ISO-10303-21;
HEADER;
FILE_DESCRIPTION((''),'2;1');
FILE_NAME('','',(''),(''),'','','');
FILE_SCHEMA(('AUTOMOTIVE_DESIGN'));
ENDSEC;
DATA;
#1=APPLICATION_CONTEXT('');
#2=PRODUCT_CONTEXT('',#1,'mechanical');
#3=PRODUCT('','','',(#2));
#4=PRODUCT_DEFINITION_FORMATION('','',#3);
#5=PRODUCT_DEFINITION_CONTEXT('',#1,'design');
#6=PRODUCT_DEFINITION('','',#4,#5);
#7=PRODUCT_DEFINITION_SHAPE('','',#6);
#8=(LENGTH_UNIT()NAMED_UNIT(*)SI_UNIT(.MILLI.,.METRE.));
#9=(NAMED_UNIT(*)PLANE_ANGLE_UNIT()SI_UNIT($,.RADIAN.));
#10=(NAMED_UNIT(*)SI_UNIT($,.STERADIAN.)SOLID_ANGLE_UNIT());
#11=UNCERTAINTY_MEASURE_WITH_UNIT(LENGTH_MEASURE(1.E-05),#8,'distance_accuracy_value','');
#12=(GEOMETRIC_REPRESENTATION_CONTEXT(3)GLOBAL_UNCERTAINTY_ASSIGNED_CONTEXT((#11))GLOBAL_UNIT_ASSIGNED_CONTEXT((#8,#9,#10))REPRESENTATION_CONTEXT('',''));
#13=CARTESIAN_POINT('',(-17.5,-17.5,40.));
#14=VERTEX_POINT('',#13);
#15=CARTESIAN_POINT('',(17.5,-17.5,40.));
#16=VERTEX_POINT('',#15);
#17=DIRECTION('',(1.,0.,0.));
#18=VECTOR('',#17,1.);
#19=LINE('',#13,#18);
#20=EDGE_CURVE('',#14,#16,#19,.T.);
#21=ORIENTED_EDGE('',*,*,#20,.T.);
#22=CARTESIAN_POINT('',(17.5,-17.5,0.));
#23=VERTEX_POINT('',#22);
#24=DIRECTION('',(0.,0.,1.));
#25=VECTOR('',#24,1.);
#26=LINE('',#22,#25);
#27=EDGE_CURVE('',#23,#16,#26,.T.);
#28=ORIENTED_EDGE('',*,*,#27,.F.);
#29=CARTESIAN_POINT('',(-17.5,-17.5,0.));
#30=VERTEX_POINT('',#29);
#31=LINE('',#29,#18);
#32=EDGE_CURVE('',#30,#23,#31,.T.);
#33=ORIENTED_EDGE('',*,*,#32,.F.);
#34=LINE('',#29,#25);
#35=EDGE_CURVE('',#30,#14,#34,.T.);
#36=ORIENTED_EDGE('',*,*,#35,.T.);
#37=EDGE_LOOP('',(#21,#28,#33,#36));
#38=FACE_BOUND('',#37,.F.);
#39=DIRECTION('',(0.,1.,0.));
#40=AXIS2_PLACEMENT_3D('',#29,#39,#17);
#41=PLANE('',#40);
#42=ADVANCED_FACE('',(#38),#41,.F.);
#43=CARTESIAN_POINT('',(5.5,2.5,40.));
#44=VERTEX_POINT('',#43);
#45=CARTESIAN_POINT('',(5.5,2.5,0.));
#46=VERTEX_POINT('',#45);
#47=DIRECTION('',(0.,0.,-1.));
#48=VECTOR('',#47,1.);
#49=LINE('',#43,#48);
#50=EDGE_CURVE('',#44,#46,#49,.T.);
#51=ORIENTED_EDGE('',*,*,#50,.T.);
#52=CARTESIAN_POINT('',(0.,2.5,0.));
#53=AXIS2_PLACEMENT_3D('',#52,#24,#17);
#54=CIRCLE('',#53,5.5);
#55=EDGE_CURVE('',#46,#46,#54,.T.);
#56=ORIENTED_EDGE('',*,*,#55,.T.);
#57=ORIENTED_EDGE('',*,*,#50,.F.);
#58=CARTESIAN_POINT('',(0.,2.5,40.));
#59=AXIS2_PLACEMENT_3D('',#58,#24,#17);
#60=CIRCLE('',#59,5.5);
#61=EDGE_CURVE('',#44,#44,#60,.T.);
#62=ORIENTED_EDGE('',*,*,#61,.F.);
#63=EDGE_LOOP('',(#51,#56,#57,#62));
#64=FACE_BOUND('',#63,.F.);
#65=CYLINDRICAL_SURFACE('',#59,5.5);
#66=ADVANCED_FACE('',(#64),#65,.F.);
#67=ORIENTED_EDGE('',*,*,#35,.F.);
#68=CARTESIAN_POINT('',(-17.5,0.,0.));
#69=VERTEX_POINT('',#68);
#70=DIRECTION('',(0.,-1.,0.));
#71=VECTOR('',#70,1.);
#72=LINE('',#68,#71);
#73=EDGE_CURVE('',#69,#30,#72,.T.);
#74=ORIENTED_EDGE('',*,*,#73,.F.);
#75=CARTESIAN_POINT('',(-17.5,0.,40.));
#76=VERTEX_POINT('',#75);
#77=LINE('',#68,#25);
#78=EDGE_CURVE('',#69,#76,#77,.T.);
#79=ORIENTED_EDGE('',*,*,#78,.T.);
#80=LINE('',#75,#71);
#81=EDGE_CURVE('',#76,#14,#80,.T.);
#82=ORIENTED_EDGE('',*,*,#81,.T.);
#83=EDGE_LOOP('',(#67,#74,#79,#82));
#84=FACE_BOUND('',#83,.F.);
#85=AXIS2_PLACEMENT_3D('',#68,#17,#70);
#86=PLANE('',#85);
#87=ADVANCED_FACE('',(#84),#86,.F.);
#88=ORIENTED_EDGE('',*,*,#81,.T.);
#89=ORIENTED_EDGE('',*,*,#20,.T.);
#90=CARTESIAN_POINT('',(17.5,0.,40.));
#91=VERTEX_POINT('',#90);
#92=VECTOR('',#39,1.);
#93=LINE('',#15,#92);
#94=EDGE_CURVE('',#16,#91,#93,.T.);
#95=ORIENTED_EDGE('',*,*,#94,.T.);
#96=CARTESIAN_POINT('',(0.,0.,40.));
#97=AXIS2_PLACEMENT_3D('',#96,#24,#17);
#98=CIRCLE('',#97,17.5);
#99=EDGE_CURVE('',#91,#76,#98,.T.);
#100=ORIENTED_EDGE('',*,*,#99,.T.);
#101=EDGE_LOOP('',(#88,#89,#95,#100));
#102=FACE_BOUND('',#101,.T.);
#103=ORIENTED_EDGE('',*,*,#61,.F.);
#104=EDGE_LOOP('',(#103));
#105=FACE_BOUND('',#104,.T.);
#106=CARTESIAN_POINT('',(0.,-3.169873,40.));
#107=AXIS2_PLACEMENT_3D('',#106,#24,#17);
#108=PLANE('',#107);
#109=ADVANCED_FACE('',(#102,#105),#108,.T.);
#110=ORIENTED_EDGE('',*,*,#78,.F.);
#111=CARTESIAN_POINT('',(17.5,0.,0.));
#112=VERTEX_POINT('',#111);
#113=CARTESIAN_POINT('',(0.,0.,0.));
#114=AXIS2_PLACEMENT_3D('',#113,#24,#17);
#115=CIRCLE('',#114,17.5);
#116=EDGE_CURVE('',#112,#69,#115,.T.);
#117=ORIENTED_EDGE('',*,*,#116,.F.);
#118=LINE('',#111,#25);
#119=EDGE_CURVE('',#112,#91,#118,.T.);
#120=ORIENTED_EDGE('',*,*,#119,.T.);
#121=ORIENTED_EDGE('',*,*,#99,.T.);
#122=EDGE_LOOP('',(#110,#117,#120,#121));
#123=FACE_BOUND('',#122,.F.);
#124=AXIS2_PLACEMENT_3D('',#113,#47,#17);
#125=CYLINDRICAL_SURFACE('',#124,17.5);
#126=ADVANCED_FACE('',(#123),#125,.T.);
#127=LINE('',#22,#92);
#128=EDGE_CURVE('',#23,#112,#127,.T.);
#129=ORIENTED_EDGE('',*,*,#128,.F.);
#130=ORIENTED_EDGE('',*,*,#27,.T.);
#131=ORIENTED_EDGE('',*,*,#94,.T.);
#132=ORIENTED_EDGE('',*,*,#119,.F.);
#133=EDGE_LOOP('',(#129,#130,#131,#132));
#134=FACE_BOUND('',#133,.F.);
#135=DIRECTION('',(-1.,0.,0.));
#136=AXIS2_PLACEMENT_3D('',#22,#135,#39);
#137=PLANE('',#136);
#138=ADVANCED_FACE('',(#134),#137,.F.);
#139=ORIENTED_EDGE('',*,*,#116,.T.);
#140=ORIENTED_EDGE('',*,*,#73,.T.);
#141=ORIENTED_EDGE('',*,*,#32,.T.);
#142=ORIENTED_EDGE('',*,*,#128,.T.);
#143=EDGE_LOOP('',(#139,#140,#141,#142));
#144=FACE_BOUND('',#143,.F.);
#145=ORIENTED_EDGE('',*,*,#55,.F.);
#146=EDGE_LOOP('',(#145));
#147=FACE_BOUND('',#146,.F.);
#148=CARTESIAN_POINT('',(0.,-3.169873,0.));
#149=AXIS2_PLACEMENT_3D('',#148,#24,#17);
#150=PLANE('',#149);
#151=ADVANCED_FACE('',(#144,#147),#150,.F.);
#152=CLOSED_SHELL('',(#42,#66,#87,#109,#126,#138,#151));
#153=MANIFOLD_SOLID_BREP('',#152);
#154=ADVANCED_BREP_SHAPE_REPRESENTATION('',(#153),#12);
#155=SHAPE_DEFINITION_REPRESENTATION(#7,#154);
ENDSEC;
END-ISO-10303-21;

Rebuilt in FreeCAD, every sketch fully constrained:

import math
import FreeCAD as App
import Part
import Sketcher

doc = App.newDocument("Part")
body = doc.addObject("PartDesign::Body", "Body")

# Sketch on XY plane
sketch1 = body.newObject("Sketcher::SketchObject", "Sketch")
sketch1.AttachmentSupport = (doc.getObject("XY_Plane"), [""])
sketch1.MapMode = "FlatFace"
sketch1.addGeometry([
    Part.LineSegment(App.Vector(-17.5, 0, 0), App.Vector(-17.5, -17.5, 0)),
    Part.LineSegment(App.Vector(-17.5, -17.5, 0), App.Vector(17.5, -17.5, 0)),
    Part.LineSegment(App.Vector(17.5, -17.5, 0), App.Vector(17.5, 0, 0)),
    Part.ArcOfCircle(Part.Circle(App.Vector(0, 0, 0), App.Vector(0, 0, 1), 17.5), math.radians(0), math.radians(180)),
], False)
sketch1.addConstraint([
    Sketcher.Constraint("Coincident", 0, 2, 1, 1),
    Sketcher.Constraint("Coincident", 1, 2, 2, 1),
    Sketcher.Constraint("Tangent", 2, 2, 3, 1),
    Sketcher.Constraint("Tangent", 3, 2, 0, 1),
    Sketcher.Constraint("Vertical", 0),
    Sketcher.Constraint("Horizontal", 1),
    Sketcher.Constraint("Vertical", 2),
    Sketcher.Constraint("Coincident", 3, 3, -1, 1),
    Sketcher.Constraint("Radius", 3, 17.5),
    Sketcher.Constraint("DistanceY", 0, 2, 0, 1, 17.5),
])
pad1 = body.newObject("PartDesign::Pad", "Pad")
pad1.Profile = sketch1
pad1.Length = 40

# Sketch on XY plane
sketch2 = body.newObject("Sketcher::SketchObject", "Sketch001")
sketch2.AttachmentSupport = (doc.getObject("XY_Plane"), [""])
sketch2.MapMode = "FlatFace"
sketch2.AttachmentOffset = App.Placement(App.Vector(0, 0, 40), App.Rotation())
sketch2.addGeometry(Part.Circle(App.Vector(0, 2.5, 0), App.Vector(0, 0, 1), 5.5), False)
sketch2.addConstraint([
    Sketcher.Constraint("PointOnObject", 0, 3, -2),
    Sketcher.Constraint("Diameter", 0, 11.0),
    Sketcher.Constraint("DistanceY", -1, 1, 0, 3, 2.5),
])
pocket1 = body.newObject("PartDesign::Pocket", "Pocket")
pocket1.Profile = sketch2
pocket1.Type = "ThroughAll"

doc.recompute()
